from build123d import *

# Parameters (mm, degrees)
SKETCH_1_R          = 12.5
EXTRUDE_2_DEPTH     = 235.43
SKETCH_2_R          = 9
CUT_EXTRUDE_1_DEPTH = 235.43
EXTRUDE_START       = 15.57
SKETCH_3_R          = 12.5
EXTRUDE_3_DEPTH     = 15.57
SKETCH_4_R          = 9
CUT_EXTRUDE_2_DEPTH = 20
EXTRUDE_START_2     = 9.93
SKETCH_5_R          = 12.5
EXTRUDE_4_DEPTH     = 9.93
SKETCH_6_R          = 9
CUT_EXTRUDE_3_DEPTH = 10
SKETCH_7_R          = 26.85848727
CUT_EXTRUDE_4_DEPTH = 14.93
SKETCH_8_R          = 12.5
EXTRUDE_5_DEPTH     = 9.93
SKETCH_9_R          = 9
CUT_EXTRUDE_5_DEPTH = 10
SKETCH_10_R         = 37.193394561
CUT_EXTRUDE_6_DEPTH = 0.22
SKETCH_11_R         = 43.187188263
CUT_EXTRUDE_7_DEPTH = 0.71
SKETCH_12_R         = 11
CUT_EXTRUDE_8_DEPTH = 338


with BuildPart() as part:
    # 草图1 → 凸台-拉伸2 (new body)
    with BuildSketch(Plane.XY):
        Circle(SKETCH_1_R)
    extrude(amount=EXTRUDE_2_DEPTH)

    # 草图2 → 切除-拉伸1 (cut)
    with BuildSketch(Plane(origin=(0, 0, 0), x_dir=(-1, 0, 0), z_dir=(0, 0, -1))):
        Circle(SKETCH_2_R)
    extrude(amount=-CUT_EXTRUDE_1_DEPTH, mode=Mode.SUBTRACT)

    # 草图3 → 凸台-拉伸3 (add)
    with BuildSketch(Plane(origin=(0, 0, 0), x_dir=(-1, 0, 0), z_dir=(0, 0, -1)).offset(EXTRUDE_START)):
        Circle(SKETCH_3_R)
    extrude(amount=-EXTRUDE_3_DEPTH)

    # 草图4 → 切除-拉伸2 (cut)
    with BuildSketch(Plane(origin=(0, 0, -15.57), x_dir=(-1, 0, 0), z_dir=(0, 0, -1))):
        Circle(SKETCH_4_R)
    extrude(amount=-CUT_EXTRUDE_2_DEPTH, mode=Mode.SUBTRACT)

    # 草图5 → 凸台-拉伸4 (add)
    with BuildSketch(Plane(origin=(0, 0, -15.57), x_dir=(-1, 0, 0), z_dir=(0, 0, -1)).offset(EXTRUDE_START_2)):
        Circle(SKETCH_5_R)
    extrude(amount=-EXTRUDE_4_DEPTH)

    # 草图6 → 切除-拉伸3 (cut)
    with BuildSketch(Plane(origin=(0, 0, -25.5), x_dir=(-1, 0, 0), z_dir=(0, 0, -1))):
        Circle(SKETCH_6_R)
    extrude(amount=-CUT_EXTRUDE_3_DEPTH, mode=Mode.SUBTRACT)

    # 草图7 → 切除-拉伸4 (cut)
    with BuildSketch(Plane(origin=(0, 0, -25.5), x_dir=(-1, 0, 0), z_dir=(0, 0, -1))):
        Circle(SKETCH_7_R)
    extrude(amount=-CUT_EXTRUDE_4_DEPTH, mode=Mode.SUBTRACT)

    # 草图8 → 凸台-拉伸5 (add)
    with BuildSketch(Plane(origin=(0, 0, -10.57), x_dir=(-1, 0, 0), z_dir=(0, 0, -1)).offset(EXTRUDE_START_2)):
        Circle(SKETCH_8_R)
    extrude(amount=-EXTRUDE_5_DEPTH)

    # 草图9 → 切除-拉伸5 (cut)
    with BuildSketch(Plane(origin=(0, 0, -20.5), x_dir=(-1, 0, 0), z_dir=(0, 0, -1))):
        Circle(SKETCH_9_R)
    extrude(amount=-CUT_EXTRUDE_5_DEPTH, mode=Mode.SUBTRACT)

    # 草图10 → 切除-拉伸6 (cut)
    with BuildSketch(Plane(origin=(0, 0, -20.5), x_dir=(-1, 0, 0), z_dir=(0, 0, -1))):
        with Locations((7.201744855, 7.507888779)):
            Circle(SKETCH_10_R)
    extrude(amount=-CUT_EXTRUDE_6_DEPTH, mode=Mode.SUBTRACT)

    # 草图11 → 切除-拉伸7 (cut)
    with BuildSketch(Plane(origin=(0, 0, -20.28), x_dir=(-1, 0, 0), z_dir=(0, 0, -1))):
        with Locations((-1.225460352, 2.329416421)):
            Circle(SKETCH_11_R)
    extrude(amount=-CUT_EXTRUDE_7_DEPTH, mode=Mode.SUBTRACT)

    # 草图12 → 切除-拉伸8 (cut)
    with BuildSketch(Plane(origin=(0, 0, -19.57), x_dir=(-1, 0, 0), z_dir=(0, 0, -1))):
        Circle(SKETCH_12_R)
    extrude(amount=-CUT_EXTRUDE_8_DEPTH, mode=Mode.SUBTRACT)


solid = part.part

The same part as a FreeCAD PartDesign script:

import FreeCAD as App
import Part
import Sketcher

V = App.Vector

doc = App.newDocument("Part")
params = doc.addObject("Spreadsheet::Sheet", "Params")
for row, (alias, value) in enumerate([
    ("sketch1_diameter", "25 mm"),
    ("pad1_length", "235.43 mm"),
    ("sketch2_diameter", "18 mm"),
    ("pocket1_length", "235.43 mm"),
    ("sketch3_diameter", "25 mm"),
    ("pad2_length", "15.57 mm"),
    ("sketch4_diameter", "18 mm"),
    ("pocket2_length", "20 mm"),
    ("sketch5_diameter", "25 mm"),
    ("pad3_length", "9.93 mm"),
    ("sketch6_diameter", "18 mm"),
    ("pocket3_length", "10 mm"),
    ("pocket4_length", "14.93 mm"),
    ("sketch8_diameter", "25 mm"),
    ("pad4_length", "9.93 mm"),
    ("sketch9_diameter", "18 mm"),
    ("pocket5_length", "10 mm"),
    ("pocket6_length", "0.22 mm"),
    ("pocket7_length", "0.71 mm"),
    ("sketch12_diameter", "22 mm"),
    ("pocket8_length", "338 mm"),
], start=1):
    params.set(f"A{row}", alias)
    params.set(f"B{row}", "=" + value)
    params.setAlias(f"B{row}", alias)

body = doc.addObject("PartDesign::Body", "Body")

# Sketch on XY plane
sketch1 = body.newObject("Sketcher::SketchObject", "Sketch")
sketch1.AttachmentSupport = (doc.getObject("XY_Plane"), [""])
sketch1.MapMode = "FlatFace"
sketch1.addGeometry(Part.Circle(V(0, 0, 0), V(0, 0, 1), 12), False)
sketch1.addConstraint(Sketcher.Constraint("Coincident", 0, 3, -1, 1))
sketch1.addConstraint(Sketcher.Constraint("Diameter", 0, 25.0))
sketch1.setExpression("Constraints[1]", "Params.sketch1_diameter")
pad1 = body.newObject("PartDesign::Pad", "Pad")
pad1.Profile = sketch1
pad1.setExpression("Length", "Params.pad1_length")

# Sketch on XY plane
sketch2 = body.newObject("Sketcher::SketchObject", "Sketch001")
sketch2.AttachmentSupport = (doc.getObject("XY_Plane"), [""])
sketch2.MapMode = "FlatFace"
sketch2.addGeometry(Part.Circle(V(0, 0, 0), V(0, 0, 1), 9), False)
sketch2.addConstraint(Sketcher.Constraint("Coincident", 0, 3, -1, 1))
sketch2.addConstraint(Sketcher.Constraint("Diameter", 0, 18.0))
sketch2.setExpression("Constraints[1]", "Params.sketch2_diameter")
pocket1 = body.newObject("PartDesign::Pocket", "Pocket")
pocket1.Profile = sketch2
pocket1.setExpression("Length", "Params.pocket1_length")
pocket1.Reversed = True

# Sketch on XY plane
sketch3 = body.newObject("Sketcher::SketchObject", "Sketch002")
sketch3.AttachmentSupport = (doc.getObject("XY_Plane"), [""])
sketch3.MapMode = "FlatFace"
sketch3.AttachmentOffset = App.Placement(V(0, 0, -15.57), App.Rotation())
sketch3.addGeometry(Part.Circle(V(0, 0, 0), V(0, 0, 1), 12), False)
sketch3.addConstraint(Sketcher.Constraint("Coincident", 0, 3, -1, 1))
sketch3.addConstraint(Sketcher.Constraint("Diameter", 0, 25.0))
sketch3.setExpression("Constraints[1]", "Params.sketch3_diameter")
pad2 = body.newObject("PartDesign::Pad", "Pad001")
pad2.Profile = sketch3
pad2.setExpression("Length", "Params.pad2_length")

# Sketch on XY plane
sketch4 = body.newObject("Sketcher::SketchObject", "Sketch003")
sketch4.AttachmentSupport = (doc.getObject("XY_Plane"), [""])
sketch4.MapMode = "FlatFace"
sketch4.AttachmentOffset = App.Placement(V(0, 0, -15.57), App.Rotation())
sketch4.addGeometry(Part.Circle(V(0, 0, 0), V(0, 0, 1), 9), False)
sketch4.addConstraint(Sketcher.Constraint("Coincident", 0, 3, -1, 1))
sketch4.addConstraint(Sketcher.Constraint("Diameter", 0, 18.0))
sketch4.setExpression("Constraints[1]", "Params.sketch4_diameter")
pocket2 = body.newObject("PartDesign::Pocket", "Pocket001")
pocket2.Profile = sketch4
pocket2.setExpression("Length", "Params.pocket2_length")
pocket2.Reversed = True

# Sketch on XY plane
sketch5 = body.newObject("Sketcher::SketchObject", "Sketch004")
sketch5.AttachmentSupport = (doc.getObject("XY_Plane"), [""])
sketch5.MapMode = "FlatFace"
sketch5.AttachmentOffset = App.Placement(V(0, 0, -25.5), App.Rotation())
sketch5.addGeometry(Part.Circle(V(0, 0, 0), V(0, 0, 1), 12), False)
sketch5.addConstraint(Sketcher.Constraint("Coincident", 0, 3, -1, 1))
sketch5.addConstraint(Sketcher.Constraint("Diameter", 0, 25.0))
sketch5.setExpression("Constraints[1]", "Params.sketch5_diameter")
pad3 = body.newObject("PartDesign::Pad", "Pad002")
pad3.Profile = sketch5
pad3.setExpression("Length", "Params.pad3_length")

# Sketch on XY plane
sketch6 = body.newObject("Sketcher::SketchObject", "Sketch005")
sketch6.AttachmentSupport = (doc.getObject("XY_Plane"), [""])
sketch6.MapMode = "FlatFace"
sketch6.AttachmentOffset = App.Placement(V(0, 0, -25.5), App.Rotation())
sketch6.addGeometry(Part.Circle(V(0, 0, 0), V(0, 0, 1), 9), False)
sketch6.addConstraint(Sketcher.Constraint("Coincident", 0, 3, -1, 1))
sketch6.addConstraint(Sketcher.Constraint("Diameter", 0, 18.0))
sketch6.setExpression("Constraints[1]", "Params.sketch6_diameter")
pocket3 = body.newObject("PartDesign::Pocket", "Pocket002")
pocket3.Profile = sketch6
pocket3.setExpression("Length", "Params.pocket3_length")
pocket3.Reversed = True

# Sketch on XY plane
sketch7 = body.newObject("Sketcher::SketchObject", "Sketch006")
sketch7.AttachmentSupport = (doc.getObject("XY_Plane"), [""])
sketch7.MapMode = "FlatFace"
sketch7.AttachmentOffset = App.Placement(V(0, 0, -25.5), App.Rotation())
sketch7.addGeometry(Part.Circle(V(0, 0, 0), V(0, 0, 1), 27), False)
sketch7.addConstraint(Sketcher.Constraint("Coincident", 0, 3, -1, 1))
sketch7.addConstraint(Sketcher.Constraint("Diameter", 0, 53.716975))
pocket4 = body.newObject("PartDesign::Pocket", "Pocket003")
pocket4.Profile = sketch7
pocket4.setExpression("Length", "Params.pocket4_length")
pocket4.Reversed = True

# Sketch on XY plane
sketch8 = body.newObject("Sketcher::SketchObject", "Sketch007")
sketch8.AttachmentSupport = (doc.getObject("XY_Plane"), [""])
sketch8.MapMode = "FlatFace"
sketch8.AttachmentOffset = App.Placement(V(0, 0, -20.5), App.Rotation())
sketch8.addGeometry(Part.Circle(V(0, 0, 0), V(0, 0, 1), 12), False)
sketch8.addConstraint(Sketcher.Constraint("Coincident", 0, 3, -1, 1))
sketch8.addConstraint(Sketcher.Constraint("Diameter", 0, 25.0))
sketch8.setExpression("Constraints[1]", "Params.sketch8_diameter")
pad4 = body.newObject("PartDesign::Pad", "Pad003")
pad4.Profile = sketch8
pad4.setExpression("Length", "Params.pad4_length")

# Sketch on XY plane
sketch9 = body.newObject("Sketcher::SketchObject", "Sketch008")
sketch9.AttachmentSupport = (doc.getObject("XY_Plane"), [""])
sketch9.MapMode = "FlatFace"
sketch9.AttachmentOffset = App.Placement(V(0, 0, -20.5), App.Rotation())
sketch9.addGeometry(Part.Circle(V(0, 0, 0), V(0, 0, 1), 9), False)
sketch9.addConstraint(Sketcher.Constraint("Coincident", 0, 3, -1, 1))
sketch9.addConstraint(Sketcher.Constraint("Diameter", 0, 18.0))
sketch9.setExpression("Constraints[1]", "Params.sketch9_diameter")
pocket5 = body.newObject("PartDesign::Pocket", "Pocket004")
pocket5.Profile = sketch9
pocket5.setExpression("Length", "Params.pocket5_length")
pocket5.Reversed = True

# Sketch on XY plane
sketch10 = body.newObject("Sketcher::SketchObject", "Sketch009")
sketch10.AttachmentSupport = (doc.getObject("XY_Plane"), [""])
sketch10.MapMode = "FlatFace"
sketch10.AttachmentOffset = App.Placement(V(0, 0, -20.5), App.Rotation())
sketch10.addGeometry(Part.Circle(V(-7, 8, 0), V(0, 0, 1), 37), False)
sketch10.addConstraint(Sketcher.Constraint("Diameter", 0, 74.386789))
sketch10.addConstraint(Sketcher.Constraint("DistanceY", -1, 1, 0, 3, 7.507889))
sketch10.addConstraint(Sketcher.Constraint("DistanceX", 0, 3, -1, 1, 7.201745))
pocket6 = body.newObject("PartDesign::Pocket", "Pocket005")
pocket6.Profile = sketch10
pocket6.setExpression("Length", "Params.pocket6_length")
pocket6.Reversed = True

# Sketch on XY plane
sketch11 = body.newObject("Sketcher::SketchObject", "Sketch010")
sketch11.AttachmentSupport = (doc.getObject("XY_Plane"), [""])
sketch11.MapMode = "FlatFace"
sketch11.AttachmentOffset = App.Placement(V(0, 0, -20.28), App.Rotation())
sketch11.addGeometry(Part.Circle(V(1, 2, 0), V(0, 0, 1), 43), False)
sketch11.addConstraint(Sketcher.Constraint("Diameter", 0, 86.374377))
sketch11.addConstraint(Sketcher.Constraint("DistanceX", -1, 1, 0, 3, 1.22546))
sketch11.addConstraint(Sketcher.Constraint("DistanceY", -1, 1, 0, 3, 2.329416))
pocket7 = body.newObject("PartDesign::Pocket", "Pocket006")
pocket7.Profile = sketch11
pocket7.setExpression("Length", "Params.pocket7_length")
pocket7.Reversed = True

# Sketch on XY plane
sketch12 = body.newObject("Sketcher::SketchObject", "Sketch011")
sketch12.AttachmentSupport = (doc.getObject("XY_Plane"), [""])
sketch12.MapMode = "FlatFace"
sketch12.AttachmentOffset = App.Placement(V(0, 0, -19.57), App.Rotation())
sketch12.addGeometry(Part.Circle(V(0, 0, 0), V(0, 0, 1), 11), False)
sketch12.addConstraint(Sketcher.Constraint("Coincident", 0, 3, -1, 1))
sketch12.addConstraint(Sketcher.Constraint("Diameter", 0, 22.0))
sketch12.setExpression("Constraints[1]", "Params.sketch12_diameter")
pocket8 = body.newObject("PartDesign::Pocket", "Pocket007")
pocket8.Profile = sketch12
pocket8.setExpression("Length", "Params.pocket8_length")
pocket8.Reversed = True

doc.recompute()
